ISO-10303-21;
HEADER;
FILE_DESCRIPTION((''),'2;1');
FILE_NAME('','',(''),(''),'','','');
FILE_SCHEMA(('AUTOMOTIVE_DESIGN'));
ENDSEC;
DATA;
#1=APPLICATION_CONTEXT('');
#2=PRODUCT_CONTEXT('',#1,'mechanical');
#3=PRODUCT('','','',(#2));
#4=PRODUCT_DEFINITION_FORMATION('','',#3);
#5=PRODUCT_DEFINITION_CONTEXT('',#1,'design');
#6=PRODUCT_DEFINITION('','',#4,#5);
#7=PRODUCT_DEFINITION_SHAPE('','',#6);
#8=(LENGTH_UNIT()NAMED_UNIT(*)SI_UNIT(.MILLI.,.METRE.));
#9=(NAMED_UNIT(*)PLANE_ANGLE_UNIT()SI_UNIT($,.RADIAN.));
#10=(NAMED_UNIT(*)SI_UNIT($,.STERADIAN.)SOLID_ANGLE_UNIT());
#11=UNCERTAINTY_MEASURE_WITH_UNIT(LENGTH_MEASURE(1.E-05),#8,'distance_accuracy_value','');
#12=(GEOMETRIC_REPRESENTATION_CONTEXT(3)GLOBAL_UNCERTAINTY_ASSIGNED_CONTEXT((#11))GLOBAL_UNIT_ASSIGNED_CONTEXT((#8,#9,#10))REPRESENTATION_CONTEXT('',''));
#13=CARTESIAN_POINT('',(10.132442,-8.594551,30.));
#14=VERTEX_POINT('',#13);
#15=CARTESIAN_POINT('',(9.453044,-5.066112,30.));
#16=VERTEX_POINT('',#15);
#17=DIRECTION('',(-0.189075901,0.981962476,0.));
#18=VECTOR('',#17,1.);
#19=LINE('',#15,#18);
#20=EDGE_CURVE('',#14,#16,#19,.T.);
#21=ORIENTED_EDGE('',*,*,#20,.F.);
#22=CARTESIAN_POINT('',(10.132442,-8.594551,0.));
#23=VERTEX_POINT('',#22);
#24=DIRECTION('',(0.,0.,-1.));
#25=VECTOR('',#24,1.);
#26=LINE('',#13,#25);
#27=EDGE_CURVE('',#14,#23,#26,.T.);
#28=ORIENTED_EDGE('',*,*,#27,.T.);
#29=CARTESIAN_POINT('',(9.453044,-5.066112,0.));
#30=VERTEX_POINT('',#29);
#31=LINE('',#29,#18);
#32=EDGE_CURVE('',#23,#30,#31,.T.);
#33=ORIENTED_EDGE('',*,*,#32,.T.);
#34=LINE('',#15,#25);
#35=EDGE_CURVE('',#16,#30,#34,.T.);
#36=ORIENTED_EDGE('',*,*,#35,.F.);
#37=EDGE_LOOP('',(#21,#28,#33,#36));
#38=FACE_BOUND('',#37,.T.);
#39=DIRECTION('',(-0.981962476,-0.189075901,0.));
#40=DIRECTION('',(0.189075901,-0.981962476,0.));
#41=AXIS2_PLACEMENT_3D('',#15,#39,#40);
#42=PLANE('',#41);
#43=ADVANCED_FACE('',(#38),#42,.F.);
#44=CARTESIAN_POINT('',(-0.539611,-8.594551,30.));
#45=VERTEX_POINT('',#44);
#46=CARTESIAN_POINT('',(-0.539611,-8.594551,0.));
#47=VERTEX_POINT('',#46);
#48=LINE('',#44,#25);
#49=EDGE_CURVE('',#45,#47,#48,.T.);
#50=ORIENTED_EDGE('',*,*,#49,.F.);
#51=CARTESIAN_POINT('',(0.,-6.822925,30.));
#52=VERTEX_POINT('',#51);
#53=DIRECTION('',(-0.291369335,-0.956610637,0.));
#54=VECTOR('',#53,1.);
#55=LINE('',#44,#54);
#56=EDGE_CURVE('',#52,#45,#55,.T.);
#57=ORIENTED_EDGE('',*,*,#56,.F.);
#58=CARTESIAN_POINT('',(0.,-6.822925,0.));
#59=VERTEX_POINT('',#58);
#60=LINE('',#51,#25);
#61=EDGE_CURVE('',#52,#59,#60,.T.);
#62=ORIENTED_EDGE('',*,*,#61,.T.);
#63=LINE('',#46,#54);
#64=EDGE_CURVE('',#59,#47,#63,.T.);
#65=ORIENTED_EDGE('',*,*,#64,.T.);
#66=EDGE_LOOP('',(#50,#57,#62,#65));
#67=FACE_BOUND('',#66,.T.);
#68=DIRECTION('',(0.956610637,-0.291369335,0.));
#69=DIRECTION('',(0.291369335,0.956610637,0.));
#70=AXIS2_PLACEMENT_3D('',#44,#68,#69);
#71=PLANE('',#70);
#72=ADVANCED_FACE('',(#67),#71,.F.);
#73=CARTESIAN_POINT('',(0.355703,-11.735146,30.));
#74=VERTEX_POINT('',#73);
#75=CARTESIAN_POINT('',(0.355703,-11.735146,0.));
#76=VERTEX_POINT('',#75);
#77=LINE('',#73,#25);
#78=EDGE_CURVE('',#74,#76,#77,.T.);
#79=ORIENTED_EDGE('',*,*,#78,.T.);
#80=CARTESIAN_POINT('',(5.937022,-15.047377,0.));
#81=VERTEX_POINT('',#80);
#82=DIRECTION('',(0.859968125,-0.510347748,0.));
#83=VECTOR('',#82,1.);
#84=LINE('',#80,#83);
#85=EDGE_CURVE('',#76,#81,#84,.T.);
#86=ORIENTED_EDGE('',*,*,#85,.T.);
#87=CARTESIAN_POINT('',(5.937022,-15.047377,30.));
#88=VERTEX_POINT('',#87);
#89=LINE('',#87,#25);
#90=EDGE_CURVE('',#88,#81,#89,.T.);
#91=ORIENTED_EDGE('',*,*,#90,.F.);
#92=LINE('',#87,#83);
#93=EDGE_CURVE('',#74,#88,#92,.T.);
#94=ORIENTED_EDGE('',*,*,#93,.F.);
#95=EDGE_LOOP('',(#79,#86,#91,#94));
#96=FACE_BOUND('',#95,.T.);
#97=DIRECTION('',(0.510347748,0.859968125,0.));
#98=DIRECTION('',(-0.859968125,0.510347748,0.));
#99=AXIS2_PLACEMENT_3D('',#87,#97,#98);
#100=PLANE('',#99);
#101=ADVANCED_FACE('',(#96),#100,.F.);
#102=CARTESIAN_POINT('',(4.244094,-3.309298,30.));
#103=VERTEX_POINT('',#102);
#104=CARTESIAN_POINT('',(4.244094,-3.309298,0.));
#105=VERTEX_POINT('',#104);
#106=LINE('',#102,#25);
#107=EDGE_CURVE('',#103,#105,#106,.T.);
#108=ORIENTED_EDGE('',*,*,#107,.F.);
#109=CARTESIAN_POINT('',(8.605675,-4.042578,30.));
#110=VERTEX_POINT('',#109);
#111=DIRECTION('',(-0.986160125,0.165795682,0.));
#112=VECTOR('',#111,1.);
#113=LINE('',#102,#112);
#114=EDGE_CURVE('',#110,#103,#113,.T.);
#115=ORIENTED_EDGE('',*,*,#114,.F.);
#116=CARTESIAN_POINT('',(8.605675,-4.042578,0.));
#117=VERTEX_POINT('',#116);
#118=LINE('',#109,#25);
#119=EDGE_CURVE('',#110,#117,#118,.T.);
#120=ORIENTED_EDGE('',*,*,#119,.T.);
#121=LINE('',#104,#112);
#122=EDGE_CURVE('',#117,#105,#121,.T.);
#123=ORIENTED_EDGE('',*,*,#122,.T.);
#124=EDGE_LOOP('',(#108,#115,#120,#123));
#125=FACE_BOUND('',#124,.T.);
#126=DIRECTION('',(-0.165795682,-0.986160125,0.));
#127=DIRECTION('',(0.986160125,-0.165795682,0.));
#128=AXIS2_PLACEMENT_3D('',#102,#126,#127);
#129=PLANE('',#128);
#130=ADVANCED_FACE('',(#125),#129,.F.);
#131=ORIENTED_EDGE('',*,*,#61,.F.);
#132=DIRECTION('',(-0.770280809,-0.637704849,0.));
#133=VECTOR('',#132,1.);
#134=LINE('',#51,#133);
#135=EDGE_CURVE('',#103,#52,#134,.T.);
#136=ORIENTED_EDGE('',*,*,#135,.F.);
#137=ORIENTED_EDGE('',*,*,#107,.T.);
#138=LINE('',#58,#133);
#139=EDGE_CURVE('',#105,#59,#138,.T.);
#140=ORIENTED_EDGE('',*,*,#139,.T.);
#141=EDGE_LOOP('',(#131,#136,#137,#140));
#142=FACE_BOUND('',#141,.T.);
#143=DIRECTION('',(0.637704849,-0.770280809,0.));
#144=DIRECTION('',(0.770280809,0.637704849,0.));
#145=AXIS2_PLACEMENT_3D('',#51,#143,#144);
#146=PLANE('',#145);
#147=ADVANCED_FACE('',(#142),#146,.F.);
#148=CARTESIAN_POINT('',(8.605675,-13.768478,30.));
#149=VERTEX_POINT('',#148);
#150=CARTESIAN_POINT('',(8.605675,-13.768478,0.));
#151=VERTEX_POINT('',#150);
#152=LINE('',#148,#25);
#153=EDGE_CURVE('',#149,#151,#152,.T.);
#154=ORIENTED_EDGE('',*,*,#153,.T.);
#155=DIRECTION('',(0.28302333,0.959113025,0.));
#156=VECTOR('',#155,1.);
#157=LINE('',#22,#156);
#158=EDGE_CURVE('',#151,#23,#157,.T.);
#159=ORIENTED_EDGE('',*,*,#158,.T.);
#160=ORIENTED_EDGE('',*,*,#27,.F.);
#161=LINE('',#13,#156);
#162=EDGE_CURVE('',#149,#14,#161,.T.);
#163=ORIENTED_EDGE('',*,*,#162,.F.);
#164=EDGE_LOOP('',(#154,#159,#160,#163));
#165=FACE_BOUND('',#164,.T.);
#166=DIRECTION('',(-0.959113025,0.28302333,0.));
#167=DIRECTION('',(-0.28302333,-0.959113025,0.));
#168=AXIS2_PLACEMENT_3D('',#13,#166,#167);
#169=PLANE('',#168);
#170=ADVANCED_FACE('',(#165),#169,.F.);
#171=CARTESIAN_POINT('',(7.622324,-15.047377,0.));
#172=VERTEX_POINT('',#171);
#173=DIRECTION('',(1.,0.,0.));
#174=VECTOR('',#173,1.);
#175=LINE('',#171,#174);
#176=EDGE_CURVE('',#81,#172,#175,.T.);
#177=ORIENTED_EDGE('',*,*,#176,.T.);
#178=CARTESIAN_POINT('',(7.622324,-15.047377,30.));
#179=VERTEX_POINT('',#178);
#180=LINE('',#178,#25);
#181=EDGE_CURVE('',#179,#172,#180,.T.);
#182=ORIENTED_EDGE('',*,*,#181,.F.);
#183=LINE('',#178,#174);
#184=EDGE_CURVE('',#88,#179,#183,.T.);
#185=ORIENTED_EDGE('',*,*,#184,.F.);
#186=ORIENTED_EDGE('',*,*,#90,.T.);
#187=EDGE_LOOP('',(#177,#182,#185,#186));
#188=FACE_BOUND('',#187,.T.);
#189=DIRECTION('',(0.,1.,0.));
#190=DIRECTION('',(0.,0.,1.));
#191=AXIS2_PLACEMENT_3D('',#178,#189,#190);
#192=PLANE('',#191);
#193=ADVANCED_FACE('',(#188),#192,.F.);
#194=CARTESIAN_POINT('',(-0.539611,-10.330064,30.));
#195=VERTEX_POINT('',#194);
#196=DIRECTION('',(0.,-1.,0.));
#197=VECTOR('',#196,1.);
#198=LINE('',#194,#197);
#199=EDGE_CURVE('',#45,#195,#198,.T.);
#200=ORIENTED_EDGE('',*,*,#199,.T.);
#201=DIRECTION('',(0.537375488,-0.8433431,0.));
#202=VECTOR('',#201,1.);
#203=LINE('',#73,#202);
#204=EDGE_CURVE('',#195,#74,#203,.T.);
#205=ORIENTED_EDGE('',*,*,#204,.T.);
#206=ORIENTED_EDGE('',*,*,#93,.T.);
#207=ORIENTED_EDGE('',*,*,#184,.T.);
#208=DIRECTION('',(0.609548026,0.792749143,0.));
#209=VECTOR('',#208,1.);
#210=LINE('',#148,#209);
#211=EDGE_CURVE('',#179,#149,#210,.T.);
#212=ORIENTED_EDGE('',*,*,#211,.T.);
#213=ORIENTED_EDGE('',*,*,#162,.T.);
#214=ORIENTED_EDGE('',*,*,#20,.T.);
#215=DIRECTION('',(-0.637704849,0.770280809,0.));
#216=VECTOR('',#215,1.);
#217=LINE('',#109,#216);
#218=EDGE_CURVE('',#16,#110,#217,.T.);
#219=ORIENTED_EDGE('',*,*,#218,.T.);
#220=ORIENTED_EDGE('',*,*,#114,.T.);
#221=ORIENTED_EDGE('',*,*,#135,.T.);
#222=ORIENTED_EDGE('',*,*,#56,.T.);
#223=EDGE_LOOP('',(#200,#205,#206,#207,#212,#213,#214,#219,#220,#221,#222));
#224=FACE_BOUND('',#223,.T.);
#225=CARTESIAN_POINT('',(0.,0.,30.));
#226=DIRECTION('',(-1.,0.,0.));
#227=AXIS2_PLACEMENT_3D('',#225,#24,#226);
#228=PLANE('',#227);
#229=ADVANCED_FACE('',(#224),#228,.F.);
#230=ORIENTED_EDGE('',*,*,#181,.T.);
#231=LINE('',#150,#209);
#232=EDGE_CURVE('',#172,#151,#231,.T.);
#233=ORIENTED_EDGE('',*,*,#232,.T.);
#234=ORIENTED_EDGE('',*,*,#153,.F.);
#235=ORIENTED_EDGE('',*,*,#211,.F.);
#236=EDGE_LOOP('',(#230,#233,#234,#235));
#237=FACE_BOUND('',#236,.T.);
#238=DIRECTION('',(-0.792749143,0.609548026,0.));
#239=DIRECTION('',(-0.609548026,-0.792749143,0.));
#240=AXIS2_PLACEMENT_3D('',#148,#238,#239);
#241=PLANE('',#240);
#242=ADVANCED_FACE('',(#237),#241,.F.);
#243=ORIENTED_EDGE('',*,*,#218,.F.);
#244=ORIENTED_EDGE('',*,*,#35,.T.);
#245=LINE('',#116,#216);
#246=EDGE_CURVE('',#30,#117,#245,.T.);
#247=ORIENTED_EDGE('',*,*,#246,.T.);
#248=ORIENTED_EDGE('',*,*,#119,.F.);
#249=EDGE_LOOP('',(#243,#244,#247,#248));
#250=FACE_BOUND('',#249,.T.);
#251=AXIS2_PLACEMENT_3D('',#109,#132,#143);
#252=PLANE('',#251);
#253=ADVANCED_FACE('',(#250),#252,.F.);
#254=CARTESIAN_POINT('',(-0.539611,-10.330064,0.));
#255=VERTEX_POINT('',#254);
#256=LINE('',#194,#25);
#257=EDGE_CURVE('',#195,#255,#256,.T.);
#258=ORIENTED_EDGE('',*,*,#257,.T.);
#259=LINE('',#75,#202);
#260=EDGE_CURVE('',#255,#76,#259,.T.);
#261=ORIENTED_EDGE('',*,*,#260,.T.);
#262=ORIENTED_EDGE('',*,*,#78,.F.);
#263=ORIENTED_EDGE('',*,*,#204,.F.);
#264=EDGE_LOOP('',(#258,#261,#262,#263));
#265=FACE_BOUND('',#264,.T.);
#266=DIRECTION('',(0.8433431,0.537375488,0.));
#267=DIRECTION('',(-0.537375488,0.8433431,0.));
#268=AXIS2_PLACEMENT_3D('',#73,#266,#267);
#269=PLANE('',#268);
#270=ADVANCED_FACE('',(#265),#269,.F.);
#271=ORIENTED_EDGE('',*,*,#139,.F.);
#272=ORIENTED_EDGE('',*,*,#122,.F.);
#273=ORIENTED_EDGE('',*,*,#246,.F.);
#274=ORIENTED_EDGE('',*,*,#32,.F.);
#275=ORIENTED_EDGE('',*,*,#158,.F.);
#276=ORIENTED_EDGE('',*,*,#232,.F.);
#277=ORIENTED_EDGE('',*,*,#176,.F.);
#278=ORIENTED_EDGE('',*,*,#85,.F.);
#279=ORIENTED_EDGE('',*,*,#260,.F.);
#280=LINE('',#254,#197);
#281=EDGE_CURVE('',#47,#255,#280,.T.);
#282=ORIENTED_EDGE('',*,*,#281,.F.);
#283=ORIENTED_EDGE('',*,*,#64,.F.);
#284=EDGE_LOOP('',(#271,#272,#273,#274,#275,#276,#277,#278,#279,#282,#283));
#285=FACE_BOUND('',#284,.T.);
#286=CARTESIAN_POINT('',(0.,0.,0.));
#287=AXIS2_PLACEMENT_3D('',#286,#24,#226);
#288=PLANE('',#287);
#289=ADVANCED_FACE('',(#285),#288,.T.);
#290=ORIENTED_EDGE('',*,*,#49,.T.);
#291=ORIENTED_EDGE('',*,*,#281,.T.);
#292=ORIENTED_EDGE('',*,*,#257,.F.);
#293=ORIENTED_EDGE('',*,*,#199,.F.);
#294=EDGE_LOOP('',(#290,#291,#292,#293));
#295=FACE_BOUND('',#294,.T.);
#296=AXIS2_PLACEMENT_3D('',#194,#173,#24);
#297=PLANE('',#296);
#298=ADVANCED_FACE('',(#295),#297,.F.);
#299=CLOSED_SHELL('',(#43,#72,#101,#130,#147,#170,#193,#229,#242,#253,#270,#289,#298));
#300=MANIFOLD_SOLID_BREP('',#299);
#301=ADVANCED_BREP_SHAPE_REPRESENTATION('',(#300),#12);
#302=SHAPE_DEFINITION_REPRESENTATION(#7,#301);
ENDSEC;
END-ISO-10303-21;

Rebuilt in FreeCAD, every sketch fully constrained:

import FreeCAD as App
import Part
import Sketcher

V = App.Vector

doc = App.newDocument("Part")
body = doc.addObject("PartDesign::Body", "Body")

sketch1 = body.newObject("Sketcher::SketchObject", "Sketch")
sketch1.AttachmentSupport = (doc.getObject("XY_Plane"), [""])
sketch1.MapMode = "FlatFace"
sketch1.addGeometry([
    Part.LineSegment(V(4.2, -3.3, 0), V(0, -6.8, 0)),
    Part.LineSegment(V(0, -6.8, 0), V(-0.5, -8.6, 0)),
    Part.LineSegment(V(-0.5, -8.6, 0), V(-0.5, -10.3, 0)),
    Part.LineSegment(V(-0.5, -10.3, 0), V(0.4, -11.7, 0)),
    Part.LineSegment(V(0.4, -11.7, 0), V(5.9, -15, 0)),
    Part.LineSegment(V(5.9, -15, 0), V(7.6, -15, 0)),
    Part.LineSegment(V(7.6, -15, 0), V(8.6, -13.8, 0)),
    Part.LineSegment(V(8.6, -13.8, 0), V(10.1, -8.6, 0)),
    Part.LineSegment(V(10.1, -8.6, 0), V(9.5, -5.1, 0)),
    Part.LineSegment(V(9.5, -5.1, 0), V(8.6, -4, 0)),
    Part.LineSegment(V(8.6, -4, 0), V(4.2, -3.3, 0)),
], False)
sketch1.addConstraint([
    Sketcher.Constraint("Coincident", 0, 2, 1, 1),
    Sketcher.Constraint("Coincident", 1, 2, 2, 1),
    Sketcher.Constraint("Coincident", 2, 2, 3, 1),
    Sketcher.Constraint("Coincident", 3, 2, 4, 1),
    Sketcher.Constraint("Coincident", 4, 2, 5, 1),
    Sketcher.Constraint("Coincident", 5, 2, 6, 1),
    Sketcher.Constraint("Coincident", 6, 2, 7, 1),
    Sketcher.Constraint("Coincident", 7, 2, 8, 1),
    Sketcher.Constraint("Coincident", 8, 2, 9, 1),
    Sketcher.Constraint("Coincident", 9, 2, 10, 1),
    Sketcher.Constraint("Coincident", 10, 2, 0, 1),
    Sketcher.Constraint("Vertical", 2),
    Sketcher.Constraint("Horizontal", 5),
    Sketcher.Constraint("PointOnObject", 0, 2, -2),
    Sketcher.Constraint("Perpendicular", 0, 9),
    Sketcher.Constraint("Horizontal", 1, 2, 7, 2),
    Sketcher.Constraint("Vertical", 6, 2, 9, 2),
    Sketcher.Constraint("DistanceX", 5, 1, 5, 2, 1.685302),
    Sketcher.Constraint("Distance", 0, 5.509801),
    Sketcher.Constraint("DistanceY", 10, 2, -1, 1, 3.309298),
    Sketcher.Constraint("DistanceY", 5, 2, 6, 2, 1.278899),
    Sketcher.Constraint("DistanceY", 6, 2, 9, 2, 9.7259),
    Sketcher.Constraint("Distance", 1, 1.851982),
    Sketcher.Constraint("Distance", 7, 5.394492),
    Sketcher.Constraint("Distance", 9, 1.32878),
    Sketcher.Constraint("Distance", 10, 4.422792),
    Sketcher.Constraint("DistanceY", 2, 2, 2, 1, 1.735513),
    Sketcher.Constraint("DistanceX", 1, 2, -1, 1, 0.539611),
    Sketcher.Constraint("DistanceY", 1, 2, -1, 1, 8.594551),
    Sketcher.Constraint("DistanceX", -1, 1, 7, 2, 10.132442),
    Sketcher.Constraint("DistanceY", 3, 2, 2, 2, 1.405082),
    Sketcher.Constraint("DistanceX", 3, 2, 4, 2, 5.581319),
    Sketcher.Constraint("DistanceX", 5, 2, 6, 2, 0.983351),
])
pad1 = body.newObject("PartDesign::Pad", "Pad")
pad1.Profile = sketch1
pad1.Length = 30

doc.recompute()
